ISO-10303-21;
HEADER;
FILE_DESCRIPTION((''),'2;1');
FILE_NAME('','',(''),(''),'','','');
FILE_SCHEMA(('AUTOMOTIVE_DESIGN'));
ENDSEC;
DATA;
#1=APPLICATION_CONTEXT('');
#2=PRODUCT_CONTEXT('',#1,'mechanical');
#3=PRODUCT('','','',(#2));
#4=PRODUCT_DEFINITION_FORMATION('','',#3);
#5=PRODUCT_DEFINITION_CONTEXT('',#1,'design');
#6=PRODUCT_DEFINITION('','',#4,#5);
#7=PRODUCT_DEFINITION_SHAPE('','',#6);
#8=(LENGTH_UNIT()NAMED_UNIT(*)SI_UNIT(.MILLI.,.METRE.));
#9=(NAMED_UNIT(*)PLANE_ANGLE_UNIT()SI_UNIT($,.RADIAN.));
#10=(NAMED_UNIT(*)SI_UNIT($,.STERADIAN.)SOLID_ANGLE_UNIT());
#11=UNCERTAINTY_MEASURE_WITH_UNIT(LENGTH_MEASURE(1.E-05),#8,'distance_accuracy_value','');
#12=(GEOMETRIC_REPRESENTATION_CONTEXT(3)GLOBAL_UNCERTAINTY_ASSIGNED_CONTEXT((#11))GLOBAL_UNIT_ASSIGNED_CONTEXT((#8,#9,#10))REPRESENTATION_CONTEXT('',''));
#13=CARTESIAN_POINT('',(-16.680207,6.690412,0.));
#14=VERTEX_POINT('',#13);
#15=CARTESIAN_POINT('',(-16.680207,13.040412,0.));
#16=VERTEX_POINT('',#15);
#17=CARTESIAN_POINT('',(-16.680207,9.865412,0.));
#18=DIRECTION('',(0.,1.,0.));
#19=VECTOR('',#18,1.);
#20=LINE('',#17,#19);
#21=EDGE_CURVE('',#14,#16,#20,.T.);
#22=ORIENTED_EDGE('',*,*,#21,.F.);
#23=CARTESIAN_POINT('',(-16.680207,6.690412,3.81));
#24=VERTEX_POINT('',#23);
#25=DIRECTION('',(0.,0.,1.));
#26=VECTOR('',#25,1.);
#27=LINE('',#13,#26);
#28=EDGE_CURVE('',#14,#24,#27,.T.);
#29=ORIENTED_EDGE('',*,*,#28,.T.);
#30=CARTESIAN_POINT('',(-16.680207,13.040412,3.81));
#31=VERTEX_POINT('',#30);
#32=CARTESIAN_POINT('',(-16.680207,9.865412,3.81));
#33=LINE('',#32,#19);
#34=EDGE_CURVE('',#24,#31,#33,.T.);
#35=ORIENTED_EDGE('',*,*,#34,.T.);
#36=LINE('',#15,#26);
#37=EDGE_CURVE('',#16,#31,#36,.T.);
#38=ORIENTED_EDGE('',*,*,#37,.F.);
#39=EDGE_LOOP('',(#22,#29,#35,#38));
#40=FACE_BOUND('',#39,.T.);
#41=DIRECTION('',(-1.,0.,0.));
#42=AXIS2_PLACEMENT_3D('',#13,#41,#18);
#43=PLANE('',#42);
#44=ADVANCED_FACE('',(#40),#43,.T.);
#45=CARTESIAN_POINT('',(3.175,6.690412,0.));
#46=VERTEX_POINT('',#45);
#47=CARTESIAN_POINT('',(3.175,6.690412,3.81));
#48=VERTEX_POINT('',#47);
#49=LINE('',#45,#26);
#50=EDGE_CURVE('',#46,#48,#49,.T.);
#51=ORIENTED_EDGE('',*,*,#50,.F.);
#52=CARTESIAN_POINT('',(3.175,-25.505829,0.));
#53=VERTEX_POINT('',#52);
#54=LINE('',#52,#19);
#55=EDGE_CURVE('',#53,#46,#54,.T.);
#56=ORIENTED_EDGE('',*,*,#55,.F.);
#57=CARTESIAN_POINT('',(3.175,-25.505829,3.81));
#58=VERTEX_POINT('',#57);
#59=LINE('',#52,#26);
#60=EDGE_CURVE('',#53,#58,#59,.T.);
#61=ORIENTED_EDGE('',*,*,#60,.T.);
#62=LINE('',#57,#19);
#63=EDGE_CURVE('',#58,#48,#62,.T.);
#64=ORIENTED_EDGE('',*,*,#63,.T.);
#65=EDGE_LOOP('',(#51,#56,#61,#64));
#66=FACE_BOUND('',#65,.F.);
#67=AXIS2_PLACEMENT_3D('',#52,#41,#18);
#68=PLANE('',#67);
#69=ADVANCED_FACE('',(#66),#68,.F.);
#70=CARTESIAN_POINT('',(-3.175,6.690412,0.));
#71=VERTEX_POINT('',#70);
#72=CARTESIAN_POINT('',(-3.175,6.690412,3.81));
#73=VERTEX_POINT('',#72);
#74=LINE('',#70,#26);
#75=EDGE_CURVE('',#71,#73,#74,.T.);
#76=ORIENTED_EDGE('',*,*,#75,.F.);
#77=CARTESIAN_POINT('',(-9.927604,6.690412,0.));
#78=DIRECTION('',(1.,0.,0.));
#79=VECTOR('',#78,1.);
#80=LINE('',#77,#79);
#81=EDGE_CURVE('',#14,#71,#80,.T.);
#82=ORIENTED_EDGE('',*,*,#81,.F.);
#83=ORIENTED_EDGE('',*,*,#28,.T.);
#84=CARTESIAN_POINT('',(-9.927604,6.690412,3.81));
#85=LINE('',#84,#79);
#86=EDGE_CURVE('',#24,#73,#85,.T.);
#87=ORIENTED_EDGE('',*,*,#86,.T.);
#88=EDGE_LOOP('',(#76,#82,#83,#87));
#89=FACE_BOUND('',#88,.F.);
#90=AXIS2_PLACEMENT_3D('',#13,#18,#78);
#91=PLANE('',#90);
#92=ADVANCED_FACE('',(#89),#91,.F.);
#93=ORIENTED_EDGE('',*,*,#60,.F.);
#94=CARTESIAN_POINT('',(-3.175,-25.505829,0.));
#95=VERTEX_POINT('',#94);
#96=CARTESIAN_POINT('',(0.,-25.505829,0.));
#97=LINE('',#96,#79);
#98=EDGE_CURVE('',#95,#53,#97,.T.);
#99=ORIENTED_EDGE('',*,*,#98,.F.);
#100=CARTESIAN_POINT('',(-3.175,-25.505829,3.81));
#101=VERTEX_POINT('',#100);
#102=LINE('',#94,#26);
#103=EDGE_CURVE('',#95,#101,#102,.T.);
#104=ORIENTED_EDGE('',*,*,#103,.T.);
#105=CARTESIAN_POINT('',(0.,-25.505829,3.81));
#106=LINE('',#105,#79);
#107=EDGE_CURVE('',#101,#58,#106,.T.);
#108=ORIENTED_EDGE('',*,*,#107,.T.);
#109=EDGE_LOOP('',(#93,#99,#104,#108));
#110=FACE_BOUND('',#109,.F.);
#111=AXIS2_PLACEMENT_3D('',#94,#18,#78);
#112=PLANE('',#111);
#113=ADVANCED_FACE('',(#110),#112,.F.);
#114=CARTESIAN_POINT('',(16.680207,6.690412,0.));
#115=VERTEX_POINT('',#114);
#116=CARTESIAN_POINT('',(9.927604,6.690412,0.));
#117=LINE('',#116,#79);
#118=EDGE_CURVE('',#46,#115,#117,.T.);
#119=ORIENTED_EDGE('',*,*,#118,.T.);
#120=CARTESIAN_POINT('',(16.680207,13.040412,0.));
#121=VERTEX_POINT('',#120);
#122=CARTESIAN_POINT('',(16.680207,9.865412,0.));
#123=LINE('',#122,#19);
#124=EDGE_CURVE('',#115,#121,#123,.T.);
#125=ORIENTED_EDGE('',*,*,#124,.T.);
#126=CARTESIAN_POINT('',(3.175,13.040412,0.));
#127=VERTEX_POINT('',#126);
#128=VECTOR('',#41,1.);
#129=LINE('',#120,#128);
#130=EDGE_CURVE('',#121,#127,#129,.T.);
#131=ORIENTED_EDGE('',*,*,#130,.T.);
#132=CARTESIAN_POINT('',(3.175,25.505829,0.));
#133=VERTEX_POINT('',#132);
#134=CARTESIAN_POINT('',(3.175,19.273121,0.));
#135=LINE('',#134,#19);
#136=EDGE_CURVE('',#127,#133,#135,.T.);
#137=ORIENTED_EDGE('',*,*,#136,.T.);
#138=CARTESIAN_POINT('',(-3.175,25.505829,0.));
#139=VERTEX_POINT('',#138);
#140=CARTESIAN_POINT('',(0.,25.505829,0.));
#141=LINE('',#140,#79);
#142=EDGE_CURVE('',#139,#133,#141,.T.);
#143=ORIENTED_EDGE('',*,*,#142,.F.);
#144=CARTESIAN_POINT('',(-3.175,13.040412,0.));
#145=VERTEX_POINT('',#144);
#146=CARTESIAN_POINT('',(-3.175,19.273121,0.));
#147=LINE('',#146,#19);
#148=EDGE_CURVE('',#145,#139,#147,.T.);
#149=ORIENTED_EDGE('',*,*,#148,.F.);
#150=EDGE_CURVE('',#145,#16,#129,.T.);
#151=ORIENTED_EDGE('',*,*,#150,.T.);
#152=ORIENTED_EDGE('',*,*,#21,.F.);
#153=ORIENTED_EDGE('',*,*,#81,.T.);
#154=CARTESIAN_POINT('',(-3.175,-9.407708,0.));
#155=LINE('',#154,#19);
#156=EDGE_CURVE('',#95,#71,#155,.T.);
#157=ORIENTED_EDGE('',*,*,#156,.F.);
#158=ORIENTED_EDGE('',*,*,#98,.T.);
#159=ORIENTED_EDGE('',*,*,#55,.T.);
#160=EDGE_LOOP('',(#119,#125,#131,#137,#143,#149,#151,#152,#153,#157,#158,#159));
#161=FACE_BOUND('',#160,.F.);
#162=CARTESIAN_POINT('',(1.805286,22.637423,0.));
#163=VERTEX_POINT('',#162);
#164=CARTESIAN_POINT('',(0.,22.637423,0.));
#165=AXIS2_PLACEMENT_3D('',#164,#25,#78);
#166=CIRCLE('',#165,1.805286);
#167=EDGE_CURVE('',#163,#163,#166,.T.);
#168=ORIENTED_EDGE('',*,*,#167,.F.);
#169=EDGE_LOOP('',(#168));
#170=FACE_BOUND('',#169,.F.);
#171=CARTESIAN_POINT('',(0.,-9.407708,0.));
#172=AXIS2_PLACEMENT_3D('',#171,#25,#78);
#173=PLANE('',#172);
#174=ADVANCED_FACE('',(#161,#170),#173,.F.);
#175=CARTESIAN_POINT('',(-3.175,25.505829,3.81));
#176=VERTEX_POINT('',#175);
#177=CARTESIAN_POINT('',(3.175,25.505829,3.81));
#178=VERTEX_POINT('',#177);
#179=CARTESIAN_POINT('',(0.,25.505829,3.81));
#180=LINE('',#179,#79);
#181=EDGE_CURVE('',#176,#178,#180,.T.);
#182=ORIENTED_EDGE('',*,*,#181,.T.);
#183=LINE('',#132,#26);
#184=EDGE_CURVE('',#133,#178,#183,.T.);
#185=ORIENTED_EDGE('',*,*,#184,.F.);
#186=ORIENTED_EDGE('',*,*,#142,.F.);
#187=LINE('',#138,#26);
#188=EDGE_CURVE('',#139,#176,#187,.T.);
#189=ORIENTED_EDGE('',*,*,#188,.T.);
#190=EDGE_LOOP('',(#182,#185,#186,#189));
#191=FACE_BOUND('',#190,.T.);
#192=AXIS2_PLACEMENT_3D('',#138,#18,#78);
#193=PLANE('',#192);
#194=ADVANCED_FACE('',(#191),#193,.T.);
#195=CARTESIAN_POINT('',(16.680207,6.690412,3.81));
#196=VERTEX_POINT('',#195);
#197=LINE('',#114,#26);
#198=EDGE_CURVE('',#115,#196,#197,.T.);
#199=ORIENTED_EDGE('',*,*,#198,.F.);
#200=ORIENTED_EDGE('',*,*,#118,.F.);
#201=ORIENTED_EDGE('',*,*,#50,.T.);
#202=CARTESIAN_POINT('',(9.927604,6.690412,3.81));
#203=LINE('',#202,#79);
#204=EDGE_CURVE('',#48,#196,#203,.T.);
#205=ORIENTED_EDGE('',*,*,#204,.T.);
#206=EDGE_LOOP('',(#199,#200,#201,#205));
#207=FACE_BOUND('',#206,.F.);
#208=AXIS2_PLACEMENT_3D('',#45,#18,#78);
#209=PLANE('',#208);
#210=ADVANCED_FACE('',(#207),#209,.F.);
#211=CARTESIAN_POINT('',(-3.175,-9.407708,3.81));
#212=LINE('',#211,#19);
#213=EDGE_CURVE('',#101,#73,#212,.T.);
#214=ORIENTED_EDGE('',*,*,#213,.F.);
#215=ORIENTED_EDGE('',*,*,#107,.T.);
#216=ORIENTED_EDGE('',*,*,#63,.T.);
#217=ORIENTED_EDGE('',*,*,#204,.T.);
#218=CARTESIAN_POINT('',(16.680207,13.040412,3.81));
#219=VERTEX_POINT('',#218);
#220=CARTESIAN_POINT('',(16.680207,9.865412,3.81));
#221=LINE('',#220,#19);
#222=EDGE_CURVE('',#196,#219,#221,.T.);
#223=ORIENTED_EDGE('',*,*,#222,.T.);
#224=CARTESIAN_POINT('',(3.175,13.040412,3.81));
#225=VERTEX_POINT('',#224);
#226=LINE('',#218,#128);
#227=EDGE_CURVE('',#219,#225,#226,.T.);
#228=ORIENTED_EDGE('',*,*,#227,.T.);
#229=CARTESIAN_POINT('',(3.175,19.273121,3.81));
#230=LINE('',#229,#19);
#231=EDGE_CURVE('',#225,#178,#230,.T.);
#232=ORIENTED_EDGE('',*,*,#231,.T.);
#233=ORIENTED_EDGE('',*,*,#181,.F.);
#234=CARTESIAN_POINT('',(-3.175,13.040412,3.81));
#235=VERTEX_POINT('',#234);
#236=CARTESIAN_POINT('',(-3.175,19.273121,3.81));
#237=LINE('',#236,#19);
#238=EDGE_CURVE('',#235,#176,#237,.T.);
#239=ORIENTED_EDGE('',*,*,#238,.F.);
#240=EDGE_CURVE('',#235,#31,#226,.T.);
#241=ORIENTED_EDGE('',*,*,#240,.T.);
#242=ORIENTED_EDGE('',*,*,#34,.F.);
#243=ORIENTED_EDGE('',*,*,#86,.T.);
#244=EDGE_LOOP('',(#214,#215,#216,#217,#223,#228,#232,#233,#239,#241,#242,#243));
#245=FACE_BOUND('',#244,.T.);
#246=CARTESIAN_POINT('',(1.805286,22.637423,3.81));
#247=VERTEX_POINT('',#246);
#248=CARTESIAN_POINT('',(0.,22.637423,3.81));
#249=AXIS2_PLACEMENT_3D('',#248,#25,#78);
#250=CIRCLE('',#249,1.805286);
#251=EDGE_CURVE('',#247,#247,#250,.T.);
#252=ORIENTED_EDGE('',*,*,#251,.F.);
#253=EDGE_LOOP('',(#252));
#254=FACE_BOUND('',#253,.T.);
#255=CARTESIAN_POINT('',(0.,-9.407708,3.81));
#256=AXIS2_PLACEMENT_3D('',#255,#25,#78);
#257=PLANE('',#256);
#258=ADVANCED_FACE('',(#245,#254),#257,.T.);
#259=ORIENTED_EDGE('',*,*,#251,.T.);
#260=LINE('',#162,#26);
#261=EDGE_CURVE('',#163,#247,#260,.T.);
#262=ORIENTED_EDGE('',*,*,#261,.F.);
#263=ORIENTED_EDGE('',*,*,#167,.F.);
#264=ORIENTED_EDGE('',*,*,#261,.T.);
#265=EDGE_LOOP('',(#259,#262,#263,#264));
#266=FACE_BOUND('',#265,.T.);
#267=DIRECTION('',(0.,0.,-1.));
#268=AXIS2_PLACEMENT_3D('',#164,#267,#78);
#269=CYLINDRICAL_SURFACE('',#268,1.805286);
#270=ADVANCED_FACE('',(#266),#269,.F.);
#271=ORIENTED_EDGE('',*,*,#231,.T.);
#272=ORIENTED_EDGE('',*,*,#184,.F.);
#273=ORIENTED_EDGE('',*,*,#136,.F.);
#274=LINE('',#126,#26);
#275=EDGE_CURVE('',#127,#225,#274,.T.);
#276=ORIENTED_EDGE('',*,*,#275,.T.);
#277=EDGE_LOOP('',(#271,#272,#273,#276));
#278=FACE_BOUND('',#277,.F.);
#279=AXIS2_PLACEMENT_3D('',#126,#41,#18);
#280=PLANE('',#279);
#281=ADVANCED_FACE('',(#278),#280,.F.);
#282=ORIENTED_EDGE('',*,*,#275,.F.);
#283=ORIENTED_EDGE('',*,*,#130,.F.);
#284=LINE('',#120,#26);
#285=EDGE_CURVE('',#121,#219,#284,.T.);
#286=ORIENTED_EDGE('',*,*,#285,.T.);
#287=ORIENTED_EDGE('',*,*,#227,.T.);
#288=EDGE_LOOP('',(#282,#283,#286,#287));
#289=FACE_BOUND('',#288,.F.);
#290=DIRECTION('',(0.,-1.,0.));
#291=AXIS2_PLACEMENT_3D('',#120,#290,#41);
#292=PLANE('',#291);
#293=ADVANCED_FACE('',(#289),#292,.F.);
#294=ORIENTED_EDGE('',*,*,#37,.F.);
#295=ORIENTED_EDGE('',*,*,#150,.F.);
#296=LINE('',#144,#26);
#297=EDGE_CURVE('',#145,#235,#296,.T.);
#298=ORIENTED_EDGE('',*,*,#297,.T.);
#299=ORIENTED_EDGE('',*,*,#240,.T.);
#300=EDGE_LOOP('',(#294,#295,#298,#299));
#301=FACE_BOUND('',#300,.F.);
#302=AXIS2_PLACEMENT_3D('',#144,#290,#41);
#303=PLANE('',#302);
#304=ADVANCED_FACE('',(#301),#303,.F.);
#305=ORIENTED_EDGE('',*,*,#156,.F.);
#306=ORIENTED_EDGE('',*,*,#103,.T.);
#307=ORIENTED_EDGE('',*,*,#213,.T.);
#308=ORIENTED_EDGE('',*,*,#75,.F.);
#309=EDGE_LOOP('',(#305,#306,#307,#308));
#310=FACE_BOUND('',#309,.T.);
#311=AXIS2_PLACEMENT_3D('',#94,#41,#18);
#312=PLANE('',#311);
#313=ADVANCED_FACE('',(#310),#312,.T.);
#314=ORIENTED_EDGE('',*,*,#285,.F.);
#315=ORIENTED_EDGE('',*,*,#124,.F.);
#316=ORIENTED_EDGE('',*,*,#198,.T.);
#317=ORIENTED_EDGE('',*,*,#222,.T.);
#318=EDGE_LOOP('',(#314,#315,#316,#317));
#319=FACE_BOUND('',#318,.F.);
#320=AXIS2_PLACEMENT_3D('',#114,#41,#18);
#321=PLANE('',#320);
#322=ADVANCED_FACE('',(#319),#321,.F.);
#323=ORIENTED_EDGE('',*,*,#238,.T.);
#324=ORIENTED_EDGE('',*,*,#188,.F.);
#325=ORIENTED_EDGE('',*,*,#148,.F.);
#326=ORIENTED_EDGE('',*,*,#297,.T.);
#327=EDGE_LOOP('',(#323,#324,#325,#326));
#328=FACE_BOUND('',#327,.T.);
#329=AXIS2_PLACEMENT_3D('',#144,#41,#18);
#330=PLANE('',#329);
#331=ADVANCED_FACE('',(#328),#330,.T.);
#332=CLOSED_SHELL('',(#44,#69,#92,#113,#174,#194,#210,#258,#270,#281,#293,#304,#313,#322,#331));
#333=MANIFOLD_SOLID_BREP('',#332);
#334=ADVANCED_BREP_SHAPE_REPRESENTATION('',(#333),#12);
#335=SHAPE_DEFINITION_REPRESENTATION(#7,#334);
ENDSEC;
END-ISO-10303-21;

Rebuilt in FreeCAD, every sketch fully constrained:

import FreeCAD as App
import Part
import Sketcher
from FreeCAD import Vector
Q = App.Units.Quantity

doc = App.newDocument("Part")
params = doc.addObject("Spreadsheet::Sheet", "Params")
for row, (alias, value) in enumerate([
    ("sketch1_width", "0.25 in"),
    ("pad1_length", "0.15 in"),
], start=1):
    params.set(f"A{row}", alias)
    params.set(f"B{row}", "=" + value)
    params.setAlias(f"B{row}", alias)

body = doc.addObject("PartDesign::Body", "Body")

# Sketch on XY plane
sketch1 = body.newObject("Sketcher::SketchObject", "Sketch")
sketch1.AttachmentSupport = (doc.getObject("XY_Plane"), [""])
sketch1.MapMode = "FlatFace"
sketch1.addGeometry(Part.LineSegment(Vector(-3.2, 6.7, 0), Vector(-3.2, -25.5, 0)), False)
sketch1.addGeometry(Part.LineSegment(Vector(-3.2, -25.5, 0), Vector(3.2, -25.5, 0)), False)
sketch1.addGeometry(Part.LineSegment(Vector(3.2, -25.5, 0), Vector(3.2, 6.7, 0)), False)
sketch1.addGeometry(Part.LineSegment(Vector(3.2, 6.7, 0), Vector(16.7, 6.7, 0)), False)
sketch1.addGeometry(Part.LineSegment(Vector(16.7, 6.7, 0), Vector(16.7, 13, 0)), False)
sketch1.addGeometry(Part.LineSegment(Vector(16.7, 13, 0), Vector(3.2, 13, 0)), False)
sketch1.addGeometry(Part.LineSegment(Vector(3.2, 13, 0), Vector(3.2, 25.5, 0)), False)
sketch1.addGeometry(Part.LineSegment(Vector(3.2, 25.5, 0), Vector(-3.2, 25.5, 0)), False)
sketch1.addGeometry(Part.LineSegment(Vector(-3.2, 25.5, 0), Vector(-3.2, 13, 0)), False)
sketch1.addGeometry(Part.LineSegment(Vector(-3.2, 13, 0), Vector(-16.7, 13, 0)), False)
sketch1.addGeometry(Part.LineSegment(Vector(-16.7, 13, 0), Vector(-16.7, 6.7, 0)), False)
sketch1.addGeometry(Part.LineSegment(Vector(-16.7, 6.7, 0), Vector(-3.2, 6.7, 0)), False)
sketch1.addGeometry(Part.Circle(Vector(0, 22.6, 0), Vector(0, 0, 1), 1.8), False)
sketch1.addConstraint(Sketcher.Constraint("Coincident", 0, 2, 1, 1))
sketch1.addConstraint(Sketcher.Constraint("Coincident", 1, 2, 2, 1))
sketch1.addConstraint(Sketcher.Constraint("Coincident", 2, 2, 3, 1))
sketch1.addConstraint(Sketcher.Constraint("Coincident", 3, 2, 4, 1))
sketch1.addConstraint(Sketcher.Constraint("Coincident", 4, 2, 5, 1))
sketch1.addConstraint(Sketcher.Constraint("Coincident", 5, 2, 6, 1))
sketch1.addConstraint(Sketcher.Constraint("Coincident", 6, 2, 7, 1))
sketch1.addConstraint(Sketcher.Constraint("Coincident", 7, 2, 8, 1))
sketch1.addConstraint(Sketcher.Constraint("Coincident", 8, 2, 9, 1))
sketch1.addConstraint(Sketcher.Constraint("Coincident", 9, 2, 10, 1))
sketch1.addConstraint(Sketcher.Constraint("Coincident", 10, 2, 11, 1))
sketch1.addConstraint(Sketcher.Constraint("Coincident", 11, 2, 0, 1))
sketch1.addConstraint(Sketcher.Constraint("Vertical", 0))
sketch1.addConstraint(Sketcher.Constraint("Horizontal", 1))
sketch1.addConstraint(Sketcher.Constraint("Vertical", 2))
sketch1.addConstraint(Sketcher.Constraint("Horizontal", 3))
sketch1.addConstraint(Sketcher.Constraint("Vertical", 4))
sketch1.addConstraint(Sketcher.Constraint("Horizontal", 5))
sketch1.addConstraint(Sketcher.Constraint("Vertical", 6))
sketch1.addConstraint(Sketcher.Constraint("Horizontal", 7))
sketch1.addConstraint(Sketcher.Constraint("Vertical", 8))
sketch1.addConstraint(Sketcher.Constraint("Horizontal", 9))
sketch1.addConstraint(Sketcher.Constraint("Vertical", 10))
sketch1.addConstraint(Sketcher.Constraint("Horizontal", 11))
sketch1.addConstraint(Sketcher.Constraint("Symmetric", 0, 2, 6, 2, -1, 1))
sketch1.addConstraint(Sketcher.Constraint("Symmetric", 5, 2, 8, 2, -2))
sketch1.addConstraint(Sketcher.Constraint("Symmetric", 3, 2, 10, 2, -2))
sketch1.addConstraint(Sketcher.Constraint("PointOnObject", 12, 3, -2))
sketch1.addConstraint(Sketcher.Constraint("Vertical", 2, 2, 5, 2))
sketch1.addConstraint(Sketcher.Constraint("Equal", 7, 4))
sketch1.addConstraint(Sketcher.Constraint("DistanceX", 1, 1, 1, 2, Q("0.25 in")))
sketch1.addConstraint(Sketcher.Constraint("Diameter", 12, Q("3.610571 mm")))
sketch1.addConstraint(Sketcher.Constraint("DistanceY", 0, 2, 0, 1, Q("32.196241 mm")))
sketch1.addConstraint(Sketcher.Constraint("DistanceX", 3, 1, 3, 2, Q("13.505207 mm")))
sketch1.addConstraint(Sketcher.Constraint("DistanceY", 6, 1, 6, 2, Q("12.465417 mm")))
sketch1.addConstraint(Sketcher.Constraint("DistanceY", 2, 2, 12, 3, Q("15.947011 mm")))
sketch1.setExpression("Constraints[30]", "Params.sketch1_width")
pad1 = body.newObject("PartDesign::Pad", "Pad")
pad1.Profile = sketch1
pad1.setExpression("Length", "Params.pad1_length")

doc.recompute()
